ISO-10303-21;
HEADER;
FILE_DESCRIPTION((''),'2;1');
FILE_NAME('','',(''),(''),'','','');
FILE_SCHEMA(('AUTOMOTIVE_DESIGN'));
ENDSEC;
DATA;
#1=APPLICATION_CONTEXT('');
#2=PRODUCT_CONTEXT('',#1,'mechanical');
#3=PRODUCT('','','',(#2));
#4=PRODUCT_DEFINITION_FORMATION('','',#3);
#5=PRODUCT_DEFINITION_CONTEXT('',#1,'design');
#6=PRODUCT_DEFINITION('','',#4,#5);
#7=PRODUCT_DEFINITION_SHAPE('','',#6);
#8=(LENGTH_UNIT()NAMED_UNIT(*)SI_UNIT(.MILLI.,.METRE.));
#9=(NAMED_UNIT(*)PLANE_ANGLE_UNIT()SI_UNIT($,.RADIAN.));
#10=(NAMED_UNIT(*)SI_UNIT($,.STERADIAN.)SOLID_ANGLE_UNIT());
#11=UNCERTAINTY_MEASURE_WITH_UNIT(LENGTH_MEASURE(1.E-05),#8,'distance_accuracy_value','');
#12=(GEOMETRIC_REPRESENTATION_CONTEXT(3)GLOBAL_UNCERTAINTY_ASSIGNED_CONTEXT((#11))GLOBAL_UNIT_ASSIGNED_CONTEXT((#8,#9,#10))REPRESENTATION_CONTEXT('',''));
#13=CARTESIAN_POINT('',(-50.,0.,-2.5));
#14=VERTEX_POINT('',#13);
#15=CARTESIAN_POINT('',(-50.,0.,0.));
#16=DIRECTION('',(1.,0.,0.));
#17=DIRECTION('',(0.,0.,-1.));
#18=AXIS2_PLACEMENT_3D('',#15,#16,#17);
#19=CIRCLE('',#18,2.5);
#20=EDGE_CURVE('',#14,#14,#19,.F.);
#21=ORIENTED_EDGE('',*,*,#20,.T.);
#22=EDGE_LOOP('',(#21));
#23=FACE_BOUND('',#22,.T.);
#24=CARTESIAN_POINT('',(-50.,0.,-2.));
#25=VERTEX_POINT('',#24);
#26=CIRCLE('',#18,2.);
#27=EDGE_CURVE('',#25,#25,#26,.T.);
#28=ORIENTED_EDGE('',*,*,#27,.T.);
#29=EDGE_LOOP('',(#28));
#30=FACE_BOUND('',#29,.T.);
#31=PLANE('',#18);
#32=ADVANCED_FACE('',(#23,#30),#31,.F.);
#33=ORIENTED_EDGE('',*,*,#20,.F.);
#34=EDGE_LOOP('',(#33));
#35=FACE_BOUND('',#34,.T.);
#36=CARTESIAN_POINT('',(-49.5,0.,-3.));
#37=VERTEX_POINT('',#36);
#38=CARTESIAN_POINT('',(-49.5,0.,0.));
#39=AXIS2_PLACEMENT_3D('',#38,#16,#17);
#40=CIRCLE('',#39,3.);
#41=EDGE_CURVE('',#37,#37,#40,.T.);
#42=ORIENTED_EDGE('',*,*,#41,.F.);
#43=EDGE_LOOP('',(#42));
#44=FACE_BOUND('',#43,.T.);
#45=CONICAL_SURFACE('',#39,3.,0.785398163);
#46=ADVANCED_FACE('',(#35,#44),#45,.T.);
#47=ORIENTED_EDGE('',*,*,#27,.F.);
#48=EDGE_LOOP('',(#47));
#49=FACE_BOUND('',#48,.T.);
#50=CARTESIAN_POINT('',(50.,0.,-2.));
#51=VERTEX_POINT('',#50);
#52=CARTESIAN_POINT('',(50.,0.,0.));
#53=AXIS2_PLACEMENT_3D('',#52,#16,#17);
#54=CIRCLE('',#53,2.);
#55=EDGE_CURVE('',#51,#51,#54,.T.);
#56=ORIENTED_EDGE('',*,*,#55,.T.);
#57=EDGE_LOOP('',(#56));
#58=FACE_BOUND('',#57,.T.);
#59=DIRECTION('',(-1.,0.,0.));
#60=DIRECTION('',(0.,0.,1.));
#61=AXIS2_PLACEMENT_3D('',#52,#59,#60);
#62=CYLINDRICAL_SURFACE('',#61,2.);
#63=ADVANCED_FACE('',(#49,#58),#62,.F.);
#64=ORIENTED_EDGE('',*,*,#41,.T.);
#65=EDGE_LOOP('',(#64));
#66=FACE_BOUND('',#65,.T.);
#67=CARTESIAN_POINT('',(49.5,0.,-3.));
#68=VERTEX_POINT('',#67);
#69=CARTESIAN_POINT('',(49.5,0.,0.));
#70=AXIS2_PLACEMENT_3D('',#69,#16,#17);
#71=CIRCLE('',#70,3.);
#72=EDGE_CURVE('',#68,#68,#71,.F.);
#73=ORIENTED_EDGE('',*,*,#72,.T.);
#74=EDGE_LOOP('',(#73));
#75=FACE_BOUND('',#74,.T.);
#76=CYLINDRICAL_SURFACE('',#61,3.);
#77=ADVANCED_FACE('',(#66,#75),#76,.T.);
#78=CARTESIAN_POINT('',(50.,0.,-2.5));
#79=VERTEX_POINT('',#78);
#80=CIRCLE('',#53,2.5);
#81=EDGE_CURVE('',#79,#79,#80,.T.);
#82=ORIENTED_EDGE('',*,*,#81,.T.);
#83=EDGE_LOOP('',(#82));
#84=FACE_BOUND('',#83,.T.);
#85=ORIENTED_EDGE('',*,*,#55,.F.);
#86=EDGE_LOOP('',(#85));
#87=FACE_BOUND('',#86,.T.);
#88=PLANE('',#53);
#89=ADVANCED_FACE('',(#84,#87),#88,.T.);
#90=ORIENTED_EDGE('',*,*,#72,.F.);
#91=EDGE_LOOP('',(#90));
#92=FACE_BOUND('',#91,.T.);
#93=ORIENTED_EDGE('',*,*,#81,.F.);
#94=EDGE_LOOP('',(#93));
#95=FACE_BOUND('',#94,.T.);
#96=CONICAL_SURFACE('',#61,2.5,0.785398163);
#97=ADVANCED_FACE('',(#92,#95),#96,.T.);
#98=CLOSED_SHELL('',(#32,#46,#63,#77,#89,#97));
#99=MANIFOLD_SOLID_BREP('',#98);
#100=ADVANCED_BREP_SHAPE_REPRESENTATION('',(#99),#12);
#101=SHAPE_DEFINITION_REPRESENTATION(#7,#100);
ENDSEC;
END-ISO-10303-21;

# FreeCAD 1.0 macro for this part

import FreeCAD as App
import Part
import Sketcher
from FreeCAD import Vector
Q = App.Units.Quantity


def edges_at(feature, points):
    """Names of the edges that pass closest to the given points."""
    edges = feature.Shape.Edges
    near = lambda p: min(range(len(edges)), key=lambda i: edges[i].distToShape(Part.Vertex(*p))[0])
    return sorted({f"Edge{near(p) + 1}" for p in points})

doc = App.newDocument("Part")
body = doc.addObject("PartDesign::Body", "Body")

# Sketch on YZ plane
sketch1 = doc.addObject("Sketcher::SketchObject", "Sketch")
body.addObject(sketch1)
sketch1.AttachmentSupport = (doc.YZ_Plane, [""])
sketch1.MapMode = "FlatFace"
sketch1.addGeometry([
    Part.Circle(Vector(0, 0, 0), Vector(0, 0, 1), 3),
    Part.Circle(Vector(0, 0, 0), Vector(0, 0, 1), 2),
], False)
sketch1.addConstraint([
    Sketcher.Constraint("Coincident", 0, 3, -1, 1),
    Sketcher.Constraint("Coincident", 1, 3, -1, 1),
    Sketcher.Constraint("Diameter", 0, Q("6 mm")),
    Sketcher.Constraint("Diameter", 1, Q("4 mm")),
])
pad1 = doc.addObject("PartDesign::Pad", "Pad")
body.addObject(pad1)
pad1.Profile = sketch1
pad1.Length = 100
pad1.Midplane = True
doc.recompute()

chamfer = doc.addObject("PartDesign::Chamfer", "Chamfer")
body.addObject(chamfer)
chamfer.Base = (pad1, edges_at(pad1, [(-50, 0, 3), (50, 0, 3)]))
chamfer.Size = 0.5

doc.recompute()
